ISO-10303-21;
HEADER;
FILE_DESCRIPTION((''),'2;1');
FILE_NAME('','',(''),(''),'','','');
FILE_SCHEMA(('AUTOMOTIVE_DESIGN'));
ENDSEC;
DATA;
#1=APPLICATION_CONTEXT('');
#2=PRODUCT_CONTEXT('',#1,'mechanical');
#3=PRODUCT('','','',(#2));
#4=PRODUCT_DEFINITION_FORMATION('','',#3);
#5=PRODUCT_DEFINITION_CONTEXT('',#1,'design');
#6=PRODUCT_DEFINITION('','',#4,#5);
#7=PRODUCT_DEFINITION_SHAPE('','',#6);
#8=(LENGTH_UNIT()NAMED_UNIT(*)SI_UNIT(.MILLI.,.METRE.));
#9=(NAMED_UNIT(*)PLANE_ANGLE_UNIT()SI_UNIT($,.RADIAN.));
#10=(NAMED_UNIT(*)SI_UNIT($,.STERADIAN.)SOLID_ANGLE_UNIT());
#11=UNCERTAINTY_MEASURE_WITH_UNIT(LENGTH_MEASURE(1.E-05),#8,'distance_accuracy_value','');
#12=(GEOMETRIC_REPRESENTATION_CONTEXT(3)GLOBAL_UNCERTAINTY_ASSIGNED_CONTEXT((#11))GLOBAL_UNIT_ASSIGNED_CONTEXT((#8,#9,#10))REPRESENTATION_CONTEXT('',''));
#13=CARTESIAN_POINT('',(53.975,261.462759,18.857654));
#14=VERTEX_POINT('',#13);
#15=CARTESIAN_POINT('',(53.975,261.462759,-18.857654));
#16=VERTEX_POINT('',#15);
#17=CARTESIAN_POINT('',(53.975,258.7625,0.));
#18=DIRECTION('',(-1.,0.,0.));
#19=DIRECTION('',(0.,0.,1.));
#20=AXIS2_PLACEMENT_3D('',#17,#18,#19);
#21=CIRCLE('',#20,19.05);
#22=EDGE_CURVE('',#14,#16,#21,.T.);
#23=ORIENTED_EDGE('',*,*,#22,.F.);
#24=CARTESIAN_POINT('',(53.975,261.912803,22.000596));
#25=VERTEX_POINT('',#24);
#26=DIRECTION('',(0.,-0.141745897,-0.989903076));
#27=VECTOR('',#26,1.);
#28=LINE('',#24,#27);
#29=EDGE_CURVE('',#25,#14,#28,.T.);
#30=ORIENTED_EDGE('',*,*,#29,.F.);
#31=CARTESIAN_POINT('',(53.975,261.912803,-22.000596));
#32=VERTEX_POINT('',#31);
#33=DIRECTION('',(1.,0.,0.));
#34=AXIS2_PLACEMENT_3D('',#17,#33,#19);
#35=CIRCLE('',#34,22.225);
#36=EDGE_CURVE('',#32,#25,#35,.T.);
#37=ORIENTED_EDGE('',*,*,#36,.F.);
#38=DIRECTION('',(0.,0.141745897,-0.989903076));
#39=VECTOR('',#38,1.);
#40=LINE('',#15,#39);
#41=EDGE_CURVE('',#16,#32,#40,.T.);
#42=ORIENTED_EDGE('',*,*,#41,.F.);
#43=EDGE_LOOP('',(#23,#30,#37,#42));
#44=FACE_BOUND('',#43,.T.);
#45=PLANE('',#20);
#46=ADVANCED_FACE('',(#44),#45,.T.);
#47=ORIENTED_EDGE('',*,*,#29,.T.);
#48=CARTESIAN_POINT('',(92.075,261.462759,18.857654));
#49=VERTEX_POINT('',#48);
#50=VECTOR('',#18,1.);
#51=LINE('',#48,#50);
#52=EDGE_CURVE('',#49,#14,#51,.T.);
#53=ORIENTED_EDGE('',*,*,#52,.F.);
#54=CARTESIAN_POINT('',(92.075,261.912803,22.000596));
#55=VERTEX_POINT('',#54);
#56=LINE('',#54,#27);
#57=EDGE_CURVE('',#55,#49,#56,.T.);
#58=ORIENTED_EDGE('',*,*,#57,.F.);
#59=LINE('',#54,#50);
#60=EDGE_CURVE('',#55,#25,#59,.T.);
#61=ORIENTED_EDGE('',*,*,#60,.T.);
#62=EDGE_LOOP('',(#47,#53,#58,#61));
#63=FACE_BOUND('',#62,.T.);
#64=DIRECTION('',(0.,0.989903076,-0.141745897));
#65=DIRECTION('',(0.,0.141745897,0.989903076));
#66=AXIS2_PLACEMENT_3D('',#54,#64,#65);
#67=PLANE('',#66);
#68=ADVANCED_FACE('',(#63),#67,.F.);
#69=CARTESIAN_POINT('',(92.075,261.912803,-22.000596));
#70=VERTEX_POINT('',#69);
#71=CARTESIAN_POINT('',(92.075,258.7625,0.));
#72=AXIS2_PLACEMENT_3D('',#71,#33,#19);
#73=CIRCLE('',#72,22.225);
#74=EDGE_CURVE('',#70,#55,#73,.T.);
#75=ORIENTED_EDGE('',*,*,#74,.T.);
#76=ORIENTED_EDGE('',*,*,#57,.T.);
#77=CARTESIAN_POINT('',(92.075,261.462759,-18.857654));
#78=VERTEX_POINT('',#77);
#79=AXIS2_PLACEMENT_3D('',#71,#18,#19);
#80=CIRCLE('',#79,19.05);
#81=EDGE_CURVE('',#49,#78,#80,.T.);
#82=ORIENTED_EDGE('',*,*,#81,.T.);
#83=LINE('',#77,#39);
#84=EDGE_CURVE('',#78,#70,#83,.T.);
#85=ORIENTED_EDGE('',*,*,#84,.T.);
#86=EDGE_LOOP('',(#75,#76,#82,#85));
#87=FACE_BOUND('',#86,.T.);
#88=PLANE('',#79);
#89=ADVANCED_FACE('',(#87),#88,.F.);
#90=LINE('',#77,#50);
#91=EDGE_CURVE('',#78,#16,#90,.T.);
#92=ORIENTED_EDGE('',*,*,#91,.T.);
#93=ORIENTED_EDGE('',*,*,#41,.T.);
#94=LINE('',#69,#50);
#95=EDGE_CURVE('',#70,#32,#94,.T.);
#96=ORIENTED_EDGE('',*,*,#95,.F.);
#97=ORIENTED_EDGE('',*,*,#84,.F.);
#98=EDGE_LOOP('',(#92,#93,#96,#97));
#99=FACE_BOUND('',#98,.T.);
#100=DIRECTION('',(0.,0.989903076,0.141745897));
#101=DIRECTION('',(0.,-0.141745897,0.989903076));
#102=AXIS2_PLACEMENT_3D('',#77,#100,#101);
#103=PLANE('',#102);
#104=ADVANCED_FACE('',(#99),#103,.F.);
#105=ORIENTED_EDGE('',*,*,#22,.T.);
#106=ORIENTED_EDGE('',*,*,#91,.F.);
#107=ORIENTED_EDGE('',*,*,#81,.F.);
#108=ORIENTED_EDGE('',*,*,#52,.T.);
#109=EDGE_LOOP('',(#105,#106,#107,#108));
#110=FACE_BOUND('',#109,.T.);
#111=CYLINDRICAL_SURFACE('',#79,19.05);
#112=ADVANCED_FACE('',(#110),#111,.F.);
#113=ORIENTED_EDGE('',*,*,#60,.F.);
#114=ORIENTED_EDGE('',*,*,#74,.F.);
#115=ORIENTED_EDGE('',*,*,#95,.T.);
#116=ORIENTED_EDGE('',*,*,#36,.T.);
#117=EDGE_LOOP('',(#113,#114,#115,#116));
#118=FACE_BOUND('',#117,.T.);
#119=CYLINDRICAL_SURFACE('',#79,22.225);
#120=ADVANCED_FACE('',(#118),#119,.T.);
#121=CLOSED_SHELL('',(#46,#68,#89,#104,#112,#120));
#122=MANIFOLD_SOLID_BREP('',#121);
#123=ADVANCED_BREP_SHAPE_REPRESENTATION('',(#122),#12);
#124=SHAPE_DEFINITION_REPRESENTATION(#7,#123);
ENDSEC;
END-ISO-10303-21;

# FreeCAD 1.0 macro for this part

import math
import FreeCAD as App
import Part
import Sketcher

V = App.Vector
Q = App.Units.Quantity

doc = App.newDocument("Part")
body = doc.addObject("PartDesign::Body", "Body")

sketch1 = body.newObject("Sketcher::SketchObject", "Sketch")
sketch1.AttachmentSupport = (doc.getObject("YZ_Plane"), [""])
sketch1.MapMode = "FlatFace"
sketch1.AttachmentOffset = App.Placement(V(0, 0, 2.125 * 25.4), App.Rotation())
sketch1.addGeometry(Part.LineSegment(V(261.912803, 22.000596, 0), V(261.462759, 18.857654, 0)), False)
sketch1.addGeometry(Part.ArcOfCircle(Part.Circle(V(258.7625, 0, 0), V(0, 0, 1), 19.05), math.radians(-81.851114), math.radians(81.851114)), False)
sketch1.addGeometry(Part.LineSegment(V(261.462759, -18.857654, 0), V(261.912803, -22.000596, 0)), False)
sketch1.addGeometry(Part.ArcOfCircle(Part.Circle(V(258.7625, 0, 0), V(0, 0, 1), 22.225), math.radians(-81.851114), math.radians(81.851114)), False)
sketch1.addConstraint(Sketcher.Constraint("Coincident", 0, 2, 1, 2))
sketch1.addConstraint(Sketcher.Constraint("Coincident", 1, 1, 2, 1))
sketch1.addConstraint(Sketcher.Constraint("Coincident", 2, 2, 3, 1))
sketch1.addConstraint(Sketcher.Constraint("Coincident", 3, 2, 0, 1))
sketch1.addConstraint(Sketcher.Constraint("Coincident", 3, 3, 1, 3))
sketch1.addConstraint(Sketcher.Constraint("Symmetric", 0, 2, 1, 1, -1))
sketch1.addConstraint(Sketcher.Constraint("Vertical", 2, 2, 3, 2))
sketch1.addConstraint(Sketcher.Constraint("Radius", 1, Q("0.75 in")))
sketch1.addConstraint(Sketcher.Constraint("Radius", 3, Q("0.875 in")))
sketch1.addConstraint(Sketcher.Constraint("DistanceX", -1, 1, 1, 3, Q("10.1875 in")))
sketch1.addConstraint(Sketcher.Constraint("DistanceX", -1, 1, 0, 2, 261.462759))
sketch1.addConstraint(Sketcher.Constraint("DistanceY", 2, 2, 0, 2, 40.858249))

sketch2 = body.newObject("Sketcher::SketchObject", "Sketch001")
sketch2.AttachmentSupport = (doc.getObject("XY_Plane"), [""])
sketch2.MapMode = "FlatFace"
sketch2.AttachmentOffset = App.Placement(V(0, 0, -22.000596), App.Rotation())
sketch2.addGeometry(Part.LineSegment(V(92.075, 261.912803, 0), V(53.975, 261.912803, 0)), False)
sketch2.addConstraint(Sketcher.Constraint("Horizontal", 0))
sketch2.addConstraint(Sketcher.Constraint("DistanceX", 0, 2, 0, 1, Q("1.5 in")))
sketch2.addConstraint(Sketcher.Constraint("DistanceX", -1, 1, 0, 1, Q("3.625 in")))
sketch2.addConstraint(Sketcher.Constraint("DistanceY", -1, 1, 0, 1, 261.912803))
doc.recompute()

additivepipe = body.newObject("PartDesign::AdditivePipe", "AdditivePipe")
additivepipe.Profile = sketch1
additivepipe.Spine = (sketch2, ["Edge1"])

doc.recompute()
